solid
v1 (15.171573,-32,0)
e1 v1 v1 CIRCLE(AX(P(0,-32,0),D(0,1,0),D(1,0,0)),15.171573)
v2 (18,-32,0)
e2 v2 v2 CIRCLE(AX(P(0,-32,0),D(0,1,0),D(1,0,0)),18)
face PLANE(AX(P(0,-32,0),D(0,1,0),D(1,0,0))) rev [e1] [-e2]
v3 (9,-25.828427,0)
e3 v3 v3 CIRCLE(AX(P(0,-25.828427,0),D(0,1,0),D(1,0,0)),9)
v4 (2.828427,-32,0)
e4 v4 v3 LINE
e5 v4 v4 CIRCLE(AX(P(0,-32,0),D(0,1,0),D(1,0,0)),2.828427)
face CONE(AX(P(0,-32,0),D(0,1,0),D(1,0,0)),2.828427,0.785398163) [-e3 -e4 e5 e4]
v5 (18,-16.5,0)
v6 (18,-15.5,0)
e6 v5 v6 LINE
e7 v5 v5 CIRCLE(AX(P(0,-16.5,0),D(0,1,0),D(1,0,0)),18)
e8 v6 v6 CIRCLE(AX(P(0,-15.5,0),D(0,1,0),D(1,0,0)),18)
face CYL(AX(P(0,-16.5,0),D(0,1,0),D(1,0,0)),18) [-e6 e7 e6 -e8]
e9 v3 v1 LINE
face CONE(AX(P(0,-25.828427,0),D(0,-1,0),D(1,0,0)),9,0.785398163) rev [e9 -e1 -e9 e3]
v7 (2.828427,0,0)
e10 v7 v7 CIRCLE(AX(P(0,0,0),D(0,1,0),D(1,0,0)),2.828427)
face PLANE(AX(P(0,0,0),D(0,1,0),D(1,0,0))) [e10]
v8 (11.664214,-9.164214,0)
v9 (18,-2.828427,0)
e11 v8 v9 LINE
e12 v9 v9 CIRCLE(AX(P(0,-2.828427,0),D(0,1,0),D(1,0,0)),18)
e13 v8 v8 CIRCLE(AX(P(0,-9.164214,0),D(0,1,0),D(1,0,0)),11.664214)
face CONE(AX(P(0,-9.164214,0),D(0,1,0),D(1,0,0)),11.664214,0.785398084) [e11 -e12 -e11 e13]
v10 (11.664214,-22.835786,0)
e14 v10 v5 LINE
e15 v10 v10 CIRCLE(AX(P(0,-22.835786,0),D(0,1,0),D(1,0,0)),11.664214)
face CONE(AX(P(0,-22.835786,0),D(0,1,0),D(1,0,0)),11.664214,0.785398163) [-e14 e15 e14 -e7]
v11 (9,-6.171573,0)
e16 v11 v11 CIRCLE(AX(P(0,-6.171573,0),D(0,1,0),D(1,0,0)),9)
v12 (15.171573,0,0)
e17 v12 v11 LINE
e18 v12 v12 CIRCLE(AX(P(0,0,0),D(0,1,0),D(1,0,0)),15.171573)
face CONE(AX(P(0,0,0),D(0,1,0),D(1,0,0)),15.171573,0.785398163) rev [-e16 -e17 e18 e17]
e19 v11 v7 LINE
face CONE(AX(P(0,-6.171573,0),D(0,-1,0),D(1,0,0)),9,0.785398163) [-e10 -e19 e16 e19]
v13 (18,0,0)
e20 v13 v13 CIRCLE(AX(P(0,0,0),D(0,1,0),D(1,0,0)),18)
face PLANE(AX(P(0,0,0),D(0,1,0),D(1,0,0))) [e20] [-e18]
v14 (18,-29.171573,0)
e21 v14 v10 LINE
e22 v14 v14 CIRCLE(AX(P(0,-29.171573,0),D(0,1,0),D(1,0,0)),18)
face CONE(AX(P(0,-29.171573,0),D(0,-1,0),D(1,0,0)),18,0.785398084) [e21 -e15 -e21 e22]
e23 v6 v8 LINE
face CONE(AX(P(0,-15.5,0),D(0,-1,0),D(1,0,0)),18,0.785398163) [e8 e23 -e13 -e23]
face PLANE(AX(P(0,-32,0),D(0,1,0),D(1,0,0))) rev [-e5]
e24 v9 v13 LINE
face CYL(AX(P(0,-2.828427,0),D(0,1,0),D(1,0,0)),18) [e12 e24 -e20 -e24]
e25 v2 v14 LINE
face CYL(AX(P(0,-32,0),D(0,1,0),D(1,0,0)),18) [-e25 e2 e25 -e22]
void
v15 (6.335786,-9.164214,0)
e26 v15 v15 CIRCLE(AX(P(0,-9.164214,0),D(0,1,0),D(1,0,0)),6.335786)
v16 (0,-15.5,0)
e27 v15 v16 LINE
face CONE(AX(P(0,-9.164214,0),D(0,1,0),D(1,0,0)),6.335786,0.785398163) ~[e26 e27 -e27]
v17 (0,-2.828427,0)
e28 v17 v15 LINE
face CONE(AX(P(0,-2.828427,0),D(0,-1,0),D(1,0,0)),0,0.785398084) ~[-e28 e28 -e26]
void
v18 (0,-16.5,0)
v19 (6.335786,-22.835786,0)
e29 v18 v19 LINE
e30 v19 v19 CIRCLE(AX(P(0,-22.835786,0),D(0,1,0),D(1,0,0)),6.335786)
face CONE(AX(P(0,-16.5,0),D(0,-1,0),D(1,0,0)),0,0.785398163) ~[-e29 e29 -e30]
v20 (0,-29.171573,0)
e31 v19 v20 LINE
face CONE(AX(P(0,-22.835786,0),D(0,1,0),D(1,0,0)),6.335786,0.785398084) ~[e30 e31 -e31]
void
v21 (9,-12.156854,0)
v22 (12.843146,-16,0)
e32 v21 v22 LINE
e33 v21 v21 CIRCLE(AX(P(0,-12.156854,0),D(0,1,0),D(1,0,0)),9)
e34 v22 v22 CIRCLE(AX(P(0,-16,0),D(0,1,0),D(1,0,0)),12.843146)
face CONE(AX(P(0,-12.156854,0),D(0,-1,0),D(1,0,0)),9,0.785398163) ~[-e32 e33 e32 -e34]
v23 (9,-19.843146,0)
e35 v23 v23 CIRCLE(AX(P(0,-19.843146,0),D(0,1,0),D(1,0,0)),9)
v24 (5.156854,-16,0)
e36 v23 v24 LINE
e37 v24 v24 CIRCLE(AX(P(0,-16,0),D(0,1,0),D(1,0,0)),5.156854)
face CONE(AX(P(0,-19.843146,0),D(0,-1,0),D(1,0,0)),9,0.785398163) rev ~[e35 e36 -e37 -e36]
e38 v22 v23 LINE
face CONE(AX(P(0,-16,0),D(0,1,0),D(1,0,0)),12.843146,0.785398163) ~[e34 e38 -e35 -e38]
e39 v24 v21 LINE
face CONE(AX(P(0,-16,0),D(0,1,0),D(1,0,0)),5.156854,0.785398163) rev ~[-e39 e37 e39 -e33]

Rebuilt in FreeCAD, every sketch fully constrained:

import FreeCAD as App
import Part
import Sketcher
from FreeCAD import Vector


def add_polygon(sketch, points):
    """Adds a closed chain of lines whose ends are joined by coincident constraints."""
    first, n = sketch.GeometryCount, len(points)
    for a, b in zip(points, points[1:] + points[:1]):
        sketch.addGeometry(Part.LineSegment(App.Vector(*a, 0), App.Vector(*b, 0)), False)
    for i in range(n):
        sketch.addConstraint(Sketcher.Constraint("Coincident", first + i, 2, first + (i + 1) % n, 1))

doc = App.newDocument("Part")
body = doc.addObject("PartDesign::Body", "Body")

sketch1 = doc.addObject("Sketcher::SketchObject", "Sketch")
body.addObject(sketch1)
sketch1.AttachmentSupport = (doc.XY_Plane, [""])
sketch1.MapMode = "FlatFace"
add_polygon(sketch1, [(2.828427, 0), (0, 0), (0, -2.828427), (6.335786, -9.164214), (0, -15.5), (0, -16.5), (6.335786, -22.835786), (0, -29.171573), (0, -32), (2.828427, -32), (9, -25.828427), (15.171573, -32), (18, -32), (18, -29.171573), (11.664214, -22.835786), (18, -16.5), (18, -15.5), (11.664214, -9.164214), (18, -2.828427), (18, 0), (15.171573, 0), (9, -6.171573)])
add_polygon(sketch1, [(9, -19.843146), (5.156854, -16), (9, -12.156854), (12.843146, -16)])
sketch1.addConstraint([
    Sketcher.Constraint("Horizontal", 0),
    Sketcher.Constraint("Vertical", 1),
    Sketcher.Constraint("Vertical", 4),
    Sketcher.Constraint("Vertical", 7),
    Sketcher.Constraint("Horizontal", 8),
    Sketcher.Constraint("Horizontal", 11),
    Sketcher.Constraint("Vertical", 12),
    Sketcher.Constraint("Vertical", 15),
    Sketcher.Constraint("Vertical", 18),
    Sketcher.Constraint("Horizontal", 19),
    Sketcher.Constraint("Coincident", 0, 2, -1, 1),
    Sketcher.Constraint("PointOnObject", 3, 2, -2),
    Sketcher.Constraint("PointOnObject", 6, 2, -2),
    Sketcher.Constraint("PointOnObject", 18, 2, -1),
    Sketcher.Constraint("Perpendicular", 2, 3),
    Sketcher.Constraint("Perpendicular", 3, 5),
    Sketcher.Constraint("Perpendicular", 5, 6),
    Sketcher.Constraint("Parallel", 6, 9),
    Sketcher.Constraint("Perpendicular", 9, 10),
    Sketcher.Constraint("Parallel", 10, 13),
    Sketcher.Constraint("Perpendicular", 13, 14),
    Sketcher.Constraint("Perpendicular", 14, 16),
    Sketcher.Constraint("Perpendicular", 16, 17),
    Sketcher.Constraint("Parallel", 17, 20),
    Sketcher.Constraint("Perpendicular", 20, 21),
    Sketcher.Constraint("Parallel", 21, 22),
    Sketcher.Constraint("Perpendicular", 22, 23),
    Sketcher.Constraint("Perpendicular", 23, 24),
    Sketcher.Constraint("Perpendicular", 24, 25),
    Sketcher.Constraint("Horizontal", 8, 2, 10, 2),
    Sketcher.Constraint("Horizontal", 6, 2, 12, 2),
    Sketcher.Constraint("Horizontal", 5, 2, 13, 2),
    Sketcher.Constraint("Horizontal", 4, 2, 14, 2),
    Sketcher.Constraint("Horizontal", 3, 2, 15, 2),
    Sketcher.Constraint("Horizontal", 2, 2, 16, 2),
    Sketcher.Constraint("Horizontal", 1, 2, 17, 2),
    Sketcher.Constraint("Horizontal", 22, 2, 24, 2),
    Sketcher.Constraint("Vertical", 2, 2, 5, 2),
    Sketcher.Constraint("Vertical", 12, 2, 14, 2),
    Sketcher.Constraint("Vertical", 10, 2, 19, 2),
    Sketcher.Constraint("Vertical", 9, 2, 20, 2),
    Sketcher.Constraint("Vertical", 20, 2, 23, 2),
    Sketcher.Constraint("Equal", 8, 11),
    Sketcher.Constraint("Equal", 19, 1),
    Sketcher.Constraint("Equal", 1, 7),
    Sketcher.Constraint("DistanceY", 4, 2, 4, 1, 1.0),
    Sketcher.Constraint("DistanceY", 7, 2, -1, 1, 32.0),
    Sketcher.Constraint("DistanceX", -1, 1, 9, 2, 9.0),
    Sketcher.Constraint("DistanceY", 22, 2, -1, 1, 16.0),
    Sketcher.Constraint("Distance", 22, 5.435029),
    Sketcher.Constraint("DistanceX", 0, 2, 0, 1, 2.828427),
])
revolution = doc.addObject("PartDesign::Revolution", "Revolution")
body.addObject(revolution)
revolution.Profile = sketch1
revolution.ReferenceAxis = (sketch1, ["V_Axis"])
revolution.Angle = 360

doc.recompute()
